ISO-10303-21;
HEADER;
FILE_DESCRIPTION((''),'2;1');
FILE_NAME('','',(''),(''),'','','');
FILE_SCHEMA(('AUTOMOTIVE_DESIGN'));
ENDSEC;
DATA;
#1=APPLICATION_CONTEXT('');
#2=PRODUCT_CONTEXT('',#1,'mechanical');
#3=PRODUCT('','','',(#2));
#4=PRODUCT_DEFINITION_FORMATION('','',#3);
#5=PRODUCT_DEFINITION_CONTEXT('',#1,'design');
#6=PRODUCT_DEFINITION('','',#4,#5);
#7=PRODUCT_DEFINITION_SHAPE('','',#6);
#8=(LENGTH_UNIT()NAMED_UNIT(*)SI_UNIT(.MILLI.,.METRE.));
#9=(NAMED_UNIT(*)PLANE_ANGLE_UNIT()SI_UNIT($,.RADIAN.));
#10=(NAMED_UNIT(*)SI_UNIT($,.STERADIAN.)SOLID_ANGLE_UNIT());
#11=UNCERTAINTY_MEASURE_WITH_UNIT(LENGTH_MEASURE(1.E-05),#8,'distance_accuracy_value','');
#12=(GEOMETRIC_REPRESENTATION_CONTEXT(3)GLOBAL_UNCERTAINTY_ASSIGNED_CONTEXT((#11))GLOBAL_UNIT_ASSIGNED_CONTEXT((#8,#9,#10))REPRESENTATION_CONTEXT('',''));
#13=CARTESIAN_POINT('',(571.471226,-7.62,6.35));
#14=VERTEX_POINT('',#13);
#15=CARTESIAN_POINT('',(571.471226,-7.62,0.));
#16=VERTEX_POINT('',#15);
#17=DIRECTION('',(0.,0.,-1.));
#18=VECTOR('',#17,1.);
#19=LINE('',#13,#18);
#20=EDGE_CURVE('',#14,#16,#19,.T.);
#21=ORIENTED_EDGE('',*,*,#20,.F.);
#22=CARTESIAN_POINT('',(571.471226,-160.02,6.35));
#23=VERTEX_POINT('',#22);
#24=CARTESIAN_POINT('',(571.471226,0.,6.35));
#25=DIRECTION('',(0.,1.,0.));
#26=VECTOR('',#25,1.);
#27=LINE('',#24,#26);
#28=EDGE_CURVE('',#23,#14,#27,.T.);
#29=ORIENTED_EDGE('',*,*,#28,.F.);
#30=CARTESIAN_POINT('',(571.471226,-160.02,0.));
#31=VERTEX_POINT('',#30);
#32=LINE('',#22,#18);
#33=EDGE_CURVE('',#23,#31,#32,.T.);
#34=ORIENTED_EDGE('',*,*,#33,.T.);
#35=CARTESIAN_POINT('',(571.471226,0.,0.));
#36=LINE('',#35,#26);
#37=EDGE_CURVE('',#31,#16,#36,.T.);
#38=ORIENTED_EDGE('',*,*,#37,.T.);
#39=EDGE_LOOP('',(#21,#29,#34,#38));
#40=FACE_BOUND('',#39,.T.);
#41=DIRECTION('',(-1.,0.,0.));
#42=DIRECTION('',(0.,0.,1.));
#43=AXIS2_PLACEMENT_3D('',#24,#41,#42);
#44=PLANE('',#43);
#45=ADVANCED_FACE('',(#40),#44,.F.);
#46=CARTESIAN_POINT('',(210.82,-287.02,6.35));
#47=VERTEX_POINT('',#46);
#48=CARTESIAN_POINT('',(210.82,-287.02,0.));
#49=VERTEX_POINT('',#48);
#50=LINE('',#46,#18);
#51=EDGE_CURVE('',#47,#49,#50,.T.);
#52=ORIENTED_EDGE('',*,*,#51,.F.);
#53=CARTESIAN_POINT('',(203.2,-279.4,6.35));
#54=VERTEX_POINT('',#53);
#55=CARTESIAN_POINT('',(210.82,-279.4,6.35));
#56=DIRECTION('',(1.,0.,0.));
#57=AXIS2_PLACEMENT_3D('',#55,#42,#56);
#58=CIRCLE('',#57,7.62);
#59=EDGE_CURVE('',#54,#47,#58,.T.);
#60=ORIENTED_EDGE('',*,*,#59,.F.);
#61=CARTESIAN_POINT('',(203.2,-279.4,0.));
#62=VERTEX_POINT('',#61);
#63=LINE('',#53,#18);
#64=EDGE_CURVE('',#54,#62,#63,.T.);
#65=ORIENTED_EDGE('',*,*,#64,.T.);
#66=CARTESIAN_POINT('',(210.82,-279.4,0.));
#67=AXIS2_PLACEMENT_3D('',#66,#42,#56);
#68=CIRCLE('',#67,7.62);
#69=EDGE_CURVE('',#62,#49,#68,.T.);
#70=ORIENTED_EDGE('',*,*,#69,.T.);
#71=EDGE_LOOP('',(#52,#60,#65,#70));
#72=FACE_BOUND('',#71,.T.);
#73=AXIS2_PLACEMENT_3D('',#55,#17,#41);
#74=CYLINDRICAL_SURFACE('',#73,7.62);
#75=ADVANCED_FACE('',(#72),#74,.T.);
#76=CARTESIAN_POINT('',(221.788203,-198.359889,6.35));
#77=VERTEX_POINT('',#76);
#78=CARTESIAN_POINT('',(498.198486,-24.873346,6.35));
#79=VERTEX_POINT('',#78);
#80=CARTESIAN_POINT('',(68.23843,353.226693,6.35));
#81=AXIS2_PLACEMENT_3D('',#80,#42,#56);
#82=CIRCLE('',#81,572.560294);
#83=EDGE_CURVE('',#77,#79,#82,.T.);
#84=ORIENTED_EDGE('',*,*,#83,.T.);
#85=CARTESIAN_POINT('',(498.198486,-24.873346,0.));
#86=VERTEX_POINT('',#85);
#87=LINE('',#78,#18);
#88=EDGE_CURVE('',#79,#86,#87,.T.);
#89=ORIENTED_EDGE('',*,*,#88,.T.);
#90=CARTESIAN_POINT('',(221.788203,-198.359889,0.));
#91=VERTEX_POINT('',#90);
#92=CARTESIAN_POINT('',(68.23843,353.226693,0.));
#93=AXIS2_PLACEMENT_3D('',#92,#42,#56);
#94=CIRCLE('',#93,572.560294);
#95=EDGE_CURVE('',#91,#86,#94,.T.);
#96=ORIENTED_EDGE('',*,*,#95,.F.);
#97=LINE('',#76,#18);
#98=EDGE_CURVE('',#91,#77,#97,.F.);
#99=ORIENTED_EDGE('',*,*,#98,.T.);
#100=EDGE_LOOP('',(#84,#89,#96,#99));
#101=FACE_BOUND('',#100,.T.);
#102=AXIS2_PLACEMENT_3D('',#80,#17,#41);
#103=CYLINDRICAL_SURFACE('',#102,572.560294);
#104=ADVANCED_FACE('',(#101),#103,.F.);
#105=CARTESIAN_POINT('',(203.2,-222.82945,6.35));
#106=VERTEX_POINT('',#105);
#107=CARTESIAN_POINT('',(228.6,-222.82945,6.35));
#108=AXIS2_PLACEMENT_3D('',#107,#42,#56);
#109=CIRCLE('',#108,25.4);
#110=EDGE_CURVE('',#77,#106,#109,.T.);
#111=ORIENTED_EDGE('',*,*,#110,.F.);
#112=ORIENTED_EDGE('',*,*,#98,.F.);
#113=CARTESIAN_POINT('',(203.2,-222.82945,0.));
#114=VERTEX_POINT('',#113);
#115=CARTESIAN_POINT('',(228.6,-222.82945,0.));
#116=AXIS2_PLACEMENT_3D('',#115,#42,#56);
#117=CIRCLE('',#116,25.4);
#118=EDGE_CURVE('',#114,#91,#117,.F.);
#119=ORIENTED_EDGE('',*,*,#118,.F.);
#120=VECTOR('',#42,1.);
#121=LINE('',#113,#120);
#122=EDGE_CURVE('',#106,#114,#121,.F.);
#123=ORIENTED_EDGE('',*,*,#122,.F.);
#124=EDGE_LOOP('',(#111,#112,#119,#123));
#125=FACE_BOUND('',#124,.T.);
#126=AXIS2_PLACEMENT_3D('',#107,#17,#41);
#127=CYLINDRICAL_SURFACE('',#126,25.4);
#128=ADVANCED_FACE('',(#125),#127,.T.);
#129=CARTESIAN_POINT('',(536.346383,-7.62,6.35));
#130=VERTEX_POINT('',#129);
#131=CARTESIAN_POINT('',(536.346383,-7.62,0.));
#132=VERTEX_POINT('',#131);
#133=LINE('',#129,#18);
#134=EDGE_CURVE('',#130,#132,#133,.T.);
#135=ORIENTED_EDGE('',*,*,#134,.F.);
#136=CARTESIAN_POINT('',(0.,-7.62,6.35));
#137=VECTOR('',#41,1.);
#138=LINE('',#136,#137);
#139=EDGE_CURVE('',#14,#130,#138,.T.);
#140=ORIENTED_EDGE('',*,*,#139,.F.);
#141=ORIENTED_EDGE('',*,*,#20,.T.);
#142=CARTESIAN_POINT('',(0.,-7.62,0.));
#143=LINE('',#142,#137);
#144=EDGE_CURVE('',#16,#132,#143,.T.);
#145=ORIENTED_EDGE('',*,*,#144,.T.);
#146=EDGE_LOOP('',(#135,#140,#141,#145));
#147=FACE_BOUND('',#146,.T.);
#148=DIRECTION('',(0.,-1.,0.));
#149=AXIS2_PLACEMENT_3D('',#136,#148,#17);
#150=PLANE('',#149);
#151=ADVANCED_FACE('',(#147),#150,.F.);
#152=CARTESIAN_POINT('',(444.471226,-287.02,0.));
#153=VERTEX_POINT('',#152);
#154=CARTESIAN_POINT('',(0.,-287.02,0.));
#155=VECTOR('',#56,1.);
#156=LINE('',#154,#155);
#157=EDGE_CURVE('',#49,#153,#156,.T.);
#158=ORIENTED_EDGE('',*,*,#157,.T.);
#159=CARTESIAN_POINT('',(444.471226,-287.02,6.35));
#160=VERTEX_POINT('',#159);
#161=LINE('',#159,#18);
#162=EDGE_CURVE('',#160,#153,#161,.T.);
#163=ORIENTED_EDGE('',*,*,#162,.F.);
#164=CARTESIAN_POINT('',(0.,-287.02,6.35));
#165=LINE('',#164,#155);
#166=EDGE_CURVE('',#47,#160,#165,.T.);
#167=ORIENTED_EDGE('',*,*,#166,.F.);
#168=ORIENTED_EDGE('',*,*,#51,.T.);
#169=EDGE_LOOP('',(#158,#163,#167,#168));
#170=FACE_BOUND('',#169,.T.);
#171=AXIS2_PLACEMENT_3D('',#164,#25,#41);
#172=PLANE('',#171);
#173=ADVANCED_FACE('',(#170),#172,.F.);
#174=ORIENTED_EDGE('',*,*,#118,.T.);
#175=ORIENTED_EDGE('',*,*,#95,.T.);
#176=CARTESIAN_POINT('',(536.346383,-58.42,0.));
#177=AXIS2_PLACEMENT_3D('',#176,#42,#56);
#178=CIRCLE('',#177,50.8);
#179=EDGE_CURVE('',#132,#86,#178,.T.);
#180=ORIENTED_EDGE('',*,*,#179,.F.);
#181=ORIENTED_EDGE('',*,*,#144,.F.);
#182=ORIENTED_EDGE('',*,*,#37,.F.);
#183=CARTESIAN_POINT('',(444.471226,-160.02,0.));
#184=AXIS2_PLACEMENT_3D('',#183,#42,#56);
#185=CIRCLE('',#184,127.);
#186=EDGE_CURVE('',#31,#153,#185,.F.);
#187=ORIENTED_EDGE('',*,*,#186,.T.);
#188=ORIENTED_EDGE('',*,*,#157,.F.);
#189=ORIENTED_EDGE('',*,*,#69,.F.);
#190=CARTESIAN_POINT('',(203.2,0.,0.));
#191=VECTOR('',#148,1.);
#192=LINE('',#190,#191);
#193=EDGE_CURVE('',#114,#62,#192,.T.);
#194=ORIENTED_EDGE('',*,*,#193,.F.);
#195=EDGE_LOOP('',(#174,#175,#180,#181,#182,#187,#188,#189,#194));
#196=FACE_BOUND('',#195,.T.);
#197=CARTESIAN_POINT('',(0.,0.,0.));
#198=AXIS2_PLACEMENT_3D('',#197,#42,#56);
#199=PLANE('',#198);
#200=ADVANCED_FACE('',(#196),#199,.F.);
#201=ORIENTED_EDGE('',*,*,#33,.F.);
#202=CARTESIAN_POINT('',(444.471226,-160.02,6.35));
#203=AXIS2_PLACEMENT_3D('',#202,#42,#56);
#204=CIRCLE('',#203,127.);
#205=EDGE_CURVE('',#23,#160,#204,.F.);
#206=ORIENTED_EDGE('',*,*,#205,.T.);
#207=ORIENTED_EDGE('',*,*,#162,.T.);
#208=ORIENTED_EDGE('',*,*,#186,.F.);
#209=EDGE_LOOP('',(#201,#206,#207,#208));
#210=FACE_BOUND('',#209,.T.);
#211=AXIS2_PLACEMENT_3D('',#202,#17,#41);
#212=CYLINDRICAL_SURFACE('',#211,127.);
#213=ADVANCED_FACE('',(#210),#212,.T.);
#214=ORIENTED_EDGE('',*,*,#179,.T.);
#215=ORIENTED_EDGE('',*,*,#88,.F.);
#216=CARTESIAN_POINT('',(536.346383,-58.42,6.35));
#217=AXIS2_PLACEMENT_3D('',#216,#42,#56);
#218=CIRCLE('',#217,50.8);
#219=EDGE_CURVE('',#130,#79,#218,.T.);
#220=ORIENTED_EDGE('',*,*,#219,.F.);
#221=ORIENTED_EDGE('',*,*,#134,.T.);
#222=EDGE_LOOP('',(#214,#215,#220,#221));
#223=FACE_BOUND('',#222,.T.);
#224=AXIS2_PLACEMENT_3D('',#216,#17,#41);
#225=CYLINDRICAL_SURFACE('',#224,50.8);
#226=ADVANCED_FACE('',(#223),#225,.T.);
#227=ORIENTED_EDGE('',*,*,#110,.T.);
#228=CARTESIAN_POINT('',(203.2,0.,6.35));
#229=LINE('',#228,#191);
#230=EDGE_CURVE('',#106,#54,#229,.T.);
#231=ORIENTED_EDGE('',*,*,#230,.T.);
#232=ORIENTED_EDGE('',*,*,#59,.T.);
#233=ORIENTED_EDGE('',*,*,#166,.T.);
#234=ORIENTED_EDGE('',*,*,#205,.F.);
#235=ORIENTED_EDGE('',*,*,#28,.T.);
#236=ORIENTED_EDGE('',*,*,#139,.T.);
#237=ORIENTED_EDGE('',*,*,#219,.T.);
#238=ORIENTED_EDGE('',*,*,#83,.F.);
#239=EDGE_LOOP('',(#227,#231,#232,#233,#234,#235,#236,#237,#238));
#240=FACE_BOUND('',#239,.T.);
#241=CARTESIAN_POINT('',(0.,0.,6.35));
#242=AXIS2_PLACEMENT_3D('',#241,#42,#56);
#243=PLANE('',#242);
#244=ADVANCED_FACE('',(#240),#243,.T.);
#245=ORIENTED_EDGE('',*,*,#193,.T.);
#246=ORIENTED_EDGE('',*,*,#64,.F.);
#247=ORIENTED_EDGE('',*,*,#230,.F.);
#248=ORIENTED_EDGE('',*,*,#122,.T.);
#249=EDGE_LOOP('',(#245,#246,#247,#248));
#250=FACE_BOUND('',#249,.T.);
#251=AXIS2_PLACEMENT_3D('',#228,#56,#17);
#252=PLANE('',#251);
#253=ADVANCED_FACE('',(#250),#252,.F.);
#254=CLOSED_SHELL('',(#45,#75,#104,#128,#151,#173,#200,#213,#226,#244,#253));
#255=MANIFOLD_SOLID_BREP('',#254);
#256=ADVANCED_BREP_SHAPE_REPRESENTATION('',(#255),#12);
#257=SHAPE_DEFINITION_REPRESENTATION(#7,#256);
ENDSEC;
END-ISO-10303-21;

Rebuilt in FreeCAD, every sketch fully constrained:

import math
import FreeCAD as App
import Part
import Sketcher

V = App.Vector
Q = App.Units.Quantity


def edges_at(feature, points):
    """Names of the edges that pass closest to the given points."""
    edges = feature.Shape.Edges
    near = lambda p: min(range(len(edges)), key=lambda i: edges[i].distToShape(Part.Vertex(*p))[0])
    return sorted({f"Edge{near(p) + 1}" for p in points})

doc = App.newDocument("Part")
params = doc.addObject("Spreadsheet::Sheet", "Params")
for row, (alias, value) in enumerate([
    ("sketch1_radius", "5 in"),
    ("sketch1_radius2", "2 in"),
    ("sketch1_radius3", "0.3 in"),
    ("sketch1_height", "3 in"),
    ("sketch1_height2", "6 in"),
    ("pad1_length", "0.25 in"),
    ("fillet_radius", "1 in"),
], start=1):
    params.set(f"A{row}", alias)
    params.set(f"B{row}", "=" + value)
    params.setAlias(f"B{row}", alias)

body = doc.addObject("PartDesign::Body", "Body")

sketch1 = body.newObject("Sketcher::SketchObject", "Sketch")
sketch1.AttachmentSupport = (doc.getObject("XY_Plane"), [""])
sketch1.MapMode = "FlatFace"
sketch1.addGeometry(Part.LineSegment(V(203, -203, 0), V(203, -279, 0)), False)
sketch1.addGeometry(Part.ArcOfCircle(Part.Circle(V(211, -279, 0), V(0, 0, 1), 8), math.radians(180), math.radians(270)), False)
sketch1.addGeometry(Part.LineSegment(V(211, -287, 0), V(444, -287, 0)), False)
sketch1.addGeometry(Part.ArcOfCircle(Part.Circle(V(444, -160, 0), V(0, 0, 1), 127), math.radians(-90), math.radians(0)), False)
sketch1.addGeometry(Part.LineSegment(V(571, -160, 0), V(571, -8, 0)), False)
sketch1.addGeometry(Part.LineSegment(V(571, -8, 0), V(536, -8, 0)), False)
sketch1.addGeometry(Part.ArcOfCircle(Part.Circle(V(536, -58, 0), V(0, 0, 1), 51), math.radians(90), math.radians(139)), False)
sketch1.addGeometry(Part.ArcOfCircle(Part.Circle(V(68, 353, 0), V(0, 0, 1), 573), math.radians(-76), math.radians(-41)), False)
sketch1.addConstraint(Sketcher.Constraint("Tangent", 0, 2, 1, 1))
sketch1.addConstraint(Sketcher.Constraint("Tangent", 1, 2, 2, 1))
sketch1.addConstraint(Sketcher.Constraint("Tangent", 2, 2, 3, 1))
sketch1.addConstraint(Sketcher.Constraint("Tangent", 3, 2, 4, 1))
sketch1.addConstraint(Sketcher.Constraint("Coincident", 4, 2, 5, 1))
sketch1.addConstraint(Sketcher.Constraint("Tangent", 5, 2, 6, 1))
sketch1.addConstraint(Sketcher.Constraint("Tangent", 6, 2, 7, 2))
sketch1.addConstraint(Sketcher.Constraint("Coincident", 7, 1, 0, 1))
sketch1.addConstraint(Sketcher.Constraint("Vertical", 0))
sketch1.addConstraint(Sketcher.Constraint("Horizontal", 2))
sketch1.addConstraint(Sketcher.Constraint("Vertical", 4))
sketch1.addConstraint(Sketcher.Constraint("Horizontal", 5))
sketch1.addConstraint(Sketcher.Constraint("Radius", 3, Q("5 in")))
sketch1.addConstraint(Sketcher.Constraint("Radius", 6, Q("2 in")))
sketch1.addConstraint(Sketcher.Constraint("Radius", 1, Q("0.3 in")))
sketch1.addConstraint(Sketcher.Constraint("DistanceY", 0, 2, 0, 1, Q("3 in")))
sketch1.addConstraint(Sketcher.Constraint("DistanceY", 4, 1, 4, 2, Q("6 in")))
sketch1.addConstraint(Sketcher.Constraint("DistanceY", 1, 3, -1, 1, Q("11 in")))
sketch1.addConstraint(Sketcher.Constraint("DistanceX", -1, 1, 0, 2, Q("8 in")))
sketch1.addConstraint(Sketcher.Constraint("Radius", 7, Q("572.560294 mm")))
sketch1.addConstraint(Sketcher.Constraint("DistanceX", 2, 1, 2, 2, Q("233.651226 mm")))
sketch1.addConstraint(Sketcher.Constraint("DistanceX", 5, 2, 5, 1, Q("35.124843 mm")))
sketch1.setExpression("Constraints[12]", "Params.sketch1_radius")
sketch1.setExpression("Constraints[13]", "Params.sketch1_radius2")
sketch1.setExpression("Constraints[14]", "Params.sketch1_radius3")
sketch1.setExpression("Constraints[15]", "Params.sketch1_height")
sketch1.setExpression("Constraints[16]", "Params.sketch1_height2")
pad1 = body.newObject("PartDesign::Pad", "Pad")
pad1.Profile = sketch1
pad1.setExpression("Length", "Params.pad1_length")
doc.recompute()

fillet = body.newObject("PartDesign::Fillet", "Fillet")
fillet.Base = (pad1, edges_at(pad1, [(203.2, -203.2, 3.175)]))
fillet.setExpression("Radius", "Params.fillet_radius")

doc.recompute()
